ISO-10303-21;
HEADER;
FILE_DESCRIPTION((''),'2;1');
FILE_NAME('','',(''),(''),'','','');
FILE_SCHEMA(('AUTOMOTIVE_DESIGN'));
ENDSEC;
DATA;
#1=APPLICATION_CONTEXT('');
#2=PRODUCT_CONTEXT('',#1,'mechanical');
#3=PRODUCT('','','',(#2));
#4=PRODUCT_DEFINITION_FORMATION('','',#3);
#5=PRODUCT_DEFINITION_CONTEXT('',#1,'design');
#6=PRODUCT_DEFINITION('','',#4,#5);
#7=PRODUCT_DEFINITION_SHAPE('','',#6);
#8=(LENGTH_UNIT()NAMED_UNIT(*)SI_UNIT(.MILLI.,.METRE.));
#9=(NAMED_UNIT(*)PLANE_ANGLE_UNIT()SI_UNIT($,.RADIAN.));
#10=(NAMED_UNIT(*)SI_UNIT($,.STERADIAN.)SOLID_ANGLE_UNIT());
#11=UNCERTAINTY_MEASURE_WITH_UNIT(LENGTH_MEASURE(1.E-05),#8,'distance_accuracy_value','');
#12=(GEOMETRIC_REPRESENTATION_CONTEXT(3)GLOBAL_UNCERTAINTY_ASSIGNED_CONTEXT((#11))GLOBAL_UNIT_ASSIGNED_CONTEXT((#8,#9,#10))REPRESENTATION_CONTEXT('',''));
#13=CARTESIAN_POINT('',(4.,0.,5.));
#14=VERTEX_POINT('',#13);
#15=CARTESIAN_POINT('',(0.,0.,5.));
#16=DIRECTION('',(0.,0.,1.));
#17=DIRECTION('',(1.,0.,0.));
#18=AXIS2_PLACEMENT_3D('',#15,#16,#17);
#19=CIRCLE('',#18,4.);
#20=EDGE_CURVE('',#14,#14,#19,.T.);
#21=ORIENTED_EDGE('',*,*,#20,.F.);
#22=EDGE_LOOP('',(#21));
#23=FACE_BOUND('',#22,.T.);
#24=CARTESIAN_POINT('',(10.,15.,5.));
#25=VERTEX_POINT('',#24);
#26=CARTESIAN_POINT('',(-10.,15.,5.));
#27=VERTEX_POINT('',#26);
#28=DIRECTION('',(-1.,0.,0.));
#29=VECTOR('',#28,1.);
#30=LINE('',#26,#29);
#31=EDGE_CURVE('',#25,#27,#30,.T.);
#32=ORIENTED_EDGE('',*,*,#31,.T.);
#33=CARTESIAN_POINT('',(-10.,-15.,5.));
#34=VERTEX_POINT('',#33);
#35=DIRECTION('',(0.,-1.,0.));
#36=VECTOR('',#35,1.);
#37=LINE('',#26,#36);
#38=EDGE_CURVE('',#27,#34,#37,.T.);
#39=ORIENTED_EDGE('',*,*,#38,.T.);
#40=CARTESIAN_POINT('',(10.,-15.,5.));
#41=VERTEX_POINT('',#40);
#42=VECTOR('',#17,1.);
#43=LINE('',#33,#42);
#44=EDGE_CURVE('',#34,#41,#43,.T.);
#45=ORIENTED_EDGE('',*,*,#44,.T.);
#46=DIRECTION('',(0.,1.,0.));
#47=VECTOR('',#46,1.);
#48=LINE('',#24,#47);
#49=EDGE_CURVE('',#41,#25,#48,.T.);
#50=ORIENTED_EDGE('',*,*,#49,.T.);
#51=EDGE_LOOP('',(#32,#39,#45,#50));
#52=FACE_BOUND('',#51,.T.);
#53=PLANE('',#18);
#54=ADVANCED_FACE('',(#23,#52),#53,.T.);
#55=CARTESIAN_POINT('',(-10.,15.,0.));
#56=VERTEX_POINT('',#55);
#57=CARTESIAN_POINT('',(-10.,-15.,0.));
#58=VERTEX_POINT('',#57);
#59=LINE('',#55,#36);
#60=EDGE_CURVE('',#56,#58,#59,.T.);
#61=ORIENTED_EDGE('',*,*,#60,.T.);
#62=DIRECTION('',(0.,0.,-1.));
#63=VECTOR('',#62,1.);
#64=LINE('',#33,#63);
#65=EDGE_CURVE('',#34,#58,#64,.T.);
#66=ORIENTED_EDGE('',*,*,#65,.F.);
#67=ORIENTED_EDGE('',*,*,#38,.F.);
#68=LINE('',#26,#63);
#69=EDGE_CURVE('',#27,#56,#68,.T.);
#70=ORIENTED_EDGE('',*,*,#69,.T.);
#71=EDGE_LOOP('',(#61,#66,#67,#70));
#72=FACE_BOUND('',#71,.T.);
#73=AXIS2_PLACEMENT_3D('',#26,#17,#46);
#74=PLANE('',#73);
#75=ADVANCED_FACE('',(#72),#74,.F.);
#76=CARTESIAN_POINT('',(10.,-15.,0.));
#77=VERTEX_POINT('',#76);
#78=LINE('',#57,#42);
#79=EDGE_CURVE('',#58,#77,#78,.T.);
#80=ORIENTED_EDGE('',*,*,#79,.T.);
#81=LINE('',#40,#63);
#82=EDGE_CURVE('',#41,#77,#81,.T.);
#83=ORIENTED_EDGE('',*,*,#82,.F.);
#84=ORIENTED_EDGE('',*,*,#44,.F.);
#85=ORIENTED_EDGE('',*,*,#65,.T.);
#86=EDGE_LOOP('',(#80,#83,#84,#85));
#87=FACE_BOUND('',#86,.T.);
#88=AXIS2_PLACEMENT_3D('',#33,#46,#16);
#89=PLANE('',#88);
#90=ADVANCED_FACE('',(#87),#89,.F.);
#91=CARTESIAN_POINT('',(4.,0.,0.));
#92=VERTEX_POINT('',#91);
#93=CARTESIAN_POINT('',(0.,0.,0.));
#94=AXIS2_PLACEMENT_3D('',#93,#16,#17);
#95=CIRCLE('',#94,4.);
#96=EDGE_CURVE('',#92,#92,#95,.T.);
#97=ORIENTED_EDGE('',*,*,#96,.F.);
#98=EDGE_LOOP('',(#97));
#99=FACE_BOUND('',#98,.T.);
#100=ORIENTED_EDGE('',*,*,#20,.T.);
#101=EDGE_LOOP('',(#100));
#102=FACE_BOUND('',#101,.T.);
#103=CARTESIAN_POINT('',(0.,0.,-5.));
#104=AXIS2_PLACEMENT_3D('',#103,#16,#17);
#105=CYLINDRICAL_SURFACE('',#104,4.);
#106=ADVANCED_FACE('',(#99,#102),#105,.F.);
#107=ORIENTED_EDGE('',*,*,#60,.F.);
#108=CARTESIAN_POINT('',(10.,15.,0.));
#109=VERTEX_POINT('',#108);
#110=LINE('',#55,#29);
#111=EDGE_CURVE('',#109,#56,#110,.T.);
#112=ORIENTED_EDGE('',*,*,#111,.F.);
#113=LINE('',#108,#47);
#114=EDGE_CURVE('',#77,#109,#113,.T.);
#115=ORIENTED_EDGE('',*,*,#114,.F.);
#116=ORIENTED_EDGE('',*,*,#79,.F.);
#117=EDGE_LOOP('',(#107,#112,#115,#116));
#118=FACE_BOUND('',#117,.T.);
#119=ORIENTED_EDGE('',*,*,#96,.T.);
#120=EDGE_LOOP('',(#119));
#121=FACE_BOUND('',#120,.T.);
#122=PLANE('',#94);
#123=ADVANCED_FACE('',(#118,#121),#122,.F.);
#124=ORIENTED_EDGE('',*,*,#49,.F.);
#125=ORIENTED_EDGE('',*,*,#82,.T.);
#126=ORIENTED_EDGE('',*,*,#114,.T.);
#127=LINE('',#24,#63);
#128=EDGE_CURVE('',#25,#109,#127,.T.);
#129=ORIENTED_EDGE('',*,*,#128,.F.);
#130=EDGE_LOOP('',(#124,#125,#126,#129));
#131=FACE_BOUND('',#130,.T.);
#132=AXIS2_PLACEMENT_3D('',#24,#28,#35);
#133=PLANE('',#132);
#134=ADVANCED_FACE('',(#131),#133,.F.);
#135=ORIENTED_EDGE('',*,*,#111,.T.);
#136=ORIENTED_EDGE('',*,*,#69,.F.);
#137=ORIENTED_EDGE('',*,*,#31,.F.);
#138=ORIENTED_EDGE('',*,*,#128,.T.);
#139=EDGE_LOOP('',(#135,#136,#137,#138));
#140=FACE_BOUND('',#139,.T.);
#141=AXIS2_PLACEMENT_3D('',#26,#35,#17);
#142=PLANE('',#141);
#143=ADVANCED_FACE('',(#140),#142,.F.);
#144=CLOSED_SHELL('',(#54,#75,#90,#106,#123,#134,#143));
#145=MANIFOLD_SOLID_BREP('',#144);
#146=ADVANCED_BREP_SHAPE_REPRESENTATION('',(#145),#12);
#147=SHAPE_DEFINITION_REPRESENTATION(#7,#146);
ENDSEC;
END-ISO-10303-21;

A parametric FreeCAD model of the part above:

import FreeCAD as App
import Part
import Sketcher
Q = App.Units.Quantity


def add_polygon(sketch, points):
    """Adds a closed chain of lines whose ends are joined by coincident constraints."""
    first, n = sketch.GeometryCount, len(points)
    for a, b in zip(points, points[1:] + points[:1]):
        sketch.addGeometry(Part.LineSegment(App.Vector(*a, 0), App.Vector(*b, 0)), False)
    for i in range(n):
        sketch.addConstraint(Sketcher.Constraint("Coincident", first + i, 2, first + (i + 1) % n, 1))

doc = App.newDocument("Part")
body = doc.addObject("PartDesign::Body", "Body")

# Sketch on XY plane
sketch1 = body.newObject("Sketcher::SketchObject", "Sketch")
sketch1.AttachmentSupport = (doc.getObject("XY_Plane"), [""])
sketch1.MapMode = "FlatFace"
add_polygon(sketch1, [(-10, 15), (-10, -15), (10, -15), (10, 15)])  # lines 0-3
sketch1.addConstraint([
    Sketcher.Constraint("Vertical", 0),
    Sketcher.Constraint("Horizontal", 1),
    Sketcher.Constraint("Vertical", 2),
    Sketcher.Constraint("Horizontal", 3),
    Sketcher.Constraint("Symmetric", 0, 2, 2, 2, -1, 1),
    Sketcher.Constraint("DistanceX", 1, 1, 1, 2, Q("20 mm")),
    Sketcher.Constraint("DistanceY", 0, 2, 0, 1, Q("30 mm")),
])
pad1 = body.newObject("PartDesign::Pad", "Pad")
pad1.Profile = sketch1
pad1.Length = 5

# Sketch on XY plane
sketch2 = body.newObject("Sketcher::SketchObject", "Sketch001")
sketch2.AttachmentSupport = (doc.getObject("XY_Plane"), [""])
sketch2.MapMode = "FlatFace"
sketch2.AttachmentOffset = App.Placement(App.Vector(0, 0, 5), App.Rotation())
sketch2.addGeometry(Part.Circle(App.Vector(0, 0, 0), App.Vector(0, 0, 1), 4), False)
sketch2.addConstraint([
    Sketcher.Constraint("Coincident", 0, 3, -1, 1),
    Sketcher.Constraint("Diameter", 0, Q("8 mm")),
])
pocket1 = body.newObject("PartDesign::Pocket", "Pocket")
pocket1.Profile = sketch2
pocket1.Length = 10

doc.recompute()
